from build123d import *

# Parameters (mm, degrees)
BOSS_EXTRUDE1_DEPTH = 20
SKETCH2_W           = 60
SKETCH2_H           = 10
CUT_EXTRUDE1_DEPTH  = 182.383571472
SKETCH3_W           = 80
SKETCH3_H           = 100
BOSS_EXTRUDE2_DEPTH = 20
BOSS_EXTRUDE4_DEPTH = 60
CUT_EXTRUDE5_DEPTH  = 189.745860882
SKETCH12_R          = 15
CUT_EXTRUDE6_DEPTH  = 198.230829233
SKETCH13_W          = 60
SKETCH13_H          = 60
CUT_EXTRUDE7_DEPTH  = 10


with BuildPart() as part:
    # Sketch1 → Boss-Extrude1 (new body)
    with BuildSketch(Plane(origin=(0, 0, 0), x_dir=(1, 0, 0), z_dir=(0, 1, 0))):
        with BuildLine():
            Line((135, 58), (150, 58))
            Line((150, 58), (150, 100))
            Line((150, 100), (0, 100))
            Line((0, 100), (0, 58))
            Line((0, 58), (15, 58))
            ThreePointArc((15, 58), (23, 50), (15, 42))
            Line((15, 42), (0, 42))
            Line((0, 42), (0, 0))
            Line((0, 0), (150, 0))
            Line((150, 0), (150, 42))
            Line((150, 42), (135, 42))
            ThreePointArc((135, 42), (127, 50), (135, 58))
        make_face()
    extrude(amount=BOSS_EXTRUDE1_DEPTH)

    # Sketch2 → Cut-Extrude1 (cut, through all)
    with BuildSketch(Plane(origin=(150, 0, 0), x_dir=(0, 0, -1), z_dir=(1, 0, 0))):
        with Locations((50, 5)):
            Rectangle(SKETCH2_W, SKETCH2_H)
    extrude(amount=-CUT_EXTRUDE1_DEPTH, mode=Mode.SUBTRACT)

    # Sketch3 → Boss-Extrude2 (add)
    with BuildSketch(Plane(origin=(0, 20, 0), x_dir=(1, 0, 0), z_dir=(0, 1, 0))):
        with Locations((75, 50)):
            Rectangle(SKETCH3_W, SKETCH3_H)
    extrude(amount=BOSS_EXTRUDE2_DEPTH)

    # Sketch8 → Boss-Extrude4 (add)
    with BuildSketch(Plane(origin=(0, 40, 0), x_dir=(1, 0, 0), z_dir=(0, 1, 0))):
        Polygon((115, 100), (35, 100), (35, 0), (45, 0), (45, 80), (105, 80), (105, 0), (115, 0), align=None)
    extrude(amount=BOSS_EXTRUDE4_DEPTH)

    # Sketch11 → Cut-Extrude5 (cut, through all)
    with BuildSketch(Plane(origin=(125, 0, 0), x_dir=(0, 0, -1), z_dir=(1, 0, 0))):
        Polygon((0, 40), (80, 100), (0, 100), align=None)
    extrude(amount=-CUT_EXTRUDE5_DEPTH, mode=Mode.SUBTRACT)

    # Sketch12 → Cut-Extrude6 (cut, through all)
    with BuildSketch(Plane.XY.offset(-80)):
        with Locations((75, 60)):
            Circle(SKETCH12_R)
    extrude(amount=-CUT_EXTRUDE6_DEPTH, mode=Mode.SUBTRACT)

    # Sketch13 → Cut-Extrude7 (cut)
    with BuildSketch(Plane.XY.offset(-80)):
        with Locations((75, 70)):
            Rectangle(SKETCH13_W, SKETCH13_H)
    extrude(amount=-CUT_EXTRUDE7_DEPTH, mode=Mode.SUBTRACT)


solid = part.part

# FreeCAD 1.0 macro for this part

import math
import FreeCAD as App
import Part
import Sketcher

V = App.Vector
Q = App.Units.Quantity


def add_polygon(sketch, points):
    """Adds a closed chain of lines whose ends are joined by coincident constraints."""
    first, n = sketch.GeometryCount, len(points)
    for a, b in zip(points, points[1:] + points[:1]):
        sketch.addGeometry(Part.LineSegment(App.Vector(*a, 0), App.Vector(*b, 0)), False)
    for i in range(n):
        sketch.addConstraint(Sketcher.Constraint("Coincident", first + i, 2, first + (i + 1) % n, 1))

doc = App.newDocument("Part")
body = doc.addObject("PartDesign::Body", "Body")

sketch1 = body.newObject("Sketcher::SketchObject", "Sketch")
sketch1.AttachmentSupport = (doc.getObject("XZ_Plane"), [""])
sketch1.MapMode = "FlatFace"
sketch1.addGeometry(Part.LineSegment(V(135, -58, 0), V(150, -58, 0)), False)
sketch1.addGeometry(Part.LineSegment(V(150, -58, 0), V(150, -100, 0)), False)
sketch1.addGeometry(Part.LineSegment(V(150, -100, 0), V(0, -100, 0)), False)
sketch1.addGeometry(Part.LineSegment(V(0, -100, 0), V(0, -58, 0)), False)
sketch1.addGeometry(Part.LineSegment(V(0, -58, 0), V(15, -58, 0)), False)
sketch1.addGeometry(Part.ArcOfCircle(Part.Circle(V(15, -50, 0), V(0, 0, 1), 8), math.radians(-90), math.radians(90)), False)
sketch1.addGeometry(Part.LineSegment(V(15, -42, 0), V(0, -42, 0)), False)
sketch1.addGeometry(Part.LineSegment(V(0, -42, 0), V(0, 0, 0)), False)
sketch1.addGeometry(Part.LineSegment(V(0, 0, 0), V(150, 0, 0)), False)
sketch1.addGeometry(Part.LineSegment(V(150, 0, 0), V(150, -42, 0)), False)
sketch1.addGeometry(Part.LineSegment(V(150, -42, 0), V(135, -42, 0)), False)
sketch1.addGeometry(Part.ArcOfCircle(Part.Circle(V(135, -50, 0), V(0, 0, 1), 8), math.radians(90), math.radians(270)), False)
sketch1.addConstraint(Sketcher.Constraint("Coincident", 0, 2, 1, 1))
sketch1.addConstraint(Sketcher.Constraint("Coincident", 1, 2, 2, 1))
sketch1.addConstraint(Sketcher.Constraint("Coincident", 2, 2, 3, 1))
sketch1.addConstraint(Sketcher.Constraint("Coincident", 3, 2, 4, 1))
sketch1.addConstraint(Sketcher.Constraint("Tangent", 4, 2, 5, 1))
sketch1.addConstraint(Sketcher.Constraint("Tangent", 5, 2, 6, 1))
sketch1.addConstraint(Sketcher.Constraint("Coincident", 6, 2, 7, 1))
sketch1.addConstraint(Sketcher.Constraint("Coincident", 7, 2, 8, 1))
sketch1.addConstraint(Sketcher.Constraint("Coincident", 8, 2, 9, 1))
sketch1.addConstraint(Sketcher.Constraint("Coincident", 9, 2, 10, 1))
sketch1.addConstraint(Sketcher.Constraint("Tangent", 10, 2, 11, 1))
sketch1.addConstraint(Sketcher.Constraint("Tangent", 11, 2, 0, 1))
sketch1.addConstraint(Sketcher.Constraint("Horizontal", 0))
sketch1.addConstraint(Sketcher.Constraint("Vertical", 1))
sketch1.addConstraint(Sketcher.Constraint("Horizontal", 2))
sketch1.addConstraint(Sketcher.Constraint("Vertical", 3))
sketch1.addConstraint(Sketcher.Constraint("Horizontal", 4))
sketch1.addConstraint(Sketcher.Constraint("Horizontal", 6))
sketch1.addConstraint(Sketcher.Constraint("Vertical", 7))
sketch1.addConstraint(Sketcher.Constraint("Horizontal", 8))
sketch1.addConstraint(Sketcher.Constraint("Vertical", 9))
sketch1.addConstraint(Sketcher.Constraint("Horizontal", 10))
sketch1.addConstraint(Sketcher.Constraint("Coincident", 7, 2, -1, 1))
sketch1.addConstraint(Sketcher.Constraint("Equal", 5, 11))
sketch1.addConstraint(Sketcher.Constraint("PointOnObject", 2, 2, -2))
sketch1.addConstraint(Sketcher.Constraint("Horizontal", 5, 3, 11, 3))
sketch1.addConstraint(Sketcher.Constraint("Vertical", 1, 2, 8, 2))
sketch1.addConstraint(Sketcher.Constraint("Equal", 0, 4))
sketch1.addConstraint(Sketcher.Constraint("Equal", 3, 7))
sketch1.addConstraint(Sketcher.Constraint("Radius", 5, Q("8 mm")))
sketch1.addConstraint(Sketcher.Constraint("DistanceX", 0, 1, 0, 2, Q("15 mm")))
sketch1.addConstraint(Sketcher.Constraint("DistanceX", 2, 2, 2, 1, Q("150 mm")))
sketch1.addConstraint(Sketcher.Constraint("DistanceY", 1, 2, 1, 1, Q("42 mm")))
pad1 = body.newObject("PartDesign::Pad", "Pad")
pad1.Profile = sketch1
pad1.Length = 20
pad1.Reversed = True

sketch2 = body.newObject("Sketcher::SketchObject", "Sketch001")
sketch2.AttachmentSupport = (doc.getObject("YZ_Plane"), [""])
sketch2.MapMode = "FlatFace"
sketch2.AttachmentOffset = App.Placement(V(0, 0, 150), App.Rotation())
add_polygon(sketch2, [(10, -20), (0, -20), (0, -80), (10, -80)])
sketch2.addConstraint(Sketcher.Constraint("Horizontal", 0))
sketch2.addConstraint(Sketcher.Constraint("Vertical", 1))
sketch2.addConstraint(Sketcher.Constraint("Horizontal", 2))
sketch2.addConstraint(Sketcher.Constraint("Vertical", 3))
sketch2.addConstraint(Sketcher.Constraint("PointOnObject", 0, 2, -2))
sketch2.addConstraint(Sketcher.Constraint("DistanceX", 0, 2, 0, 1, Q("10 mm")))
sketch2.addConstraint(Sketcher.Constraint("DistanceY", 1, 2, 1, 1, Q("60 mm")))
sketch2.addConstraint(Sketcher.Constraint("DistanceY", 0, 2, -1, 1, Q("20 mm")))
pocket1 = body.newObject("PartDesign::Pocket", "Pocket")
pocket1.Profile = sketch2
pocket1.Type = "ThroughAll"

sketch3 = body.newObject("Sketcher::SketchObject", "Sketch002")
sketch3.AttachmentSupport = (doc.getObject("XZ_Plane"), [""])
sketch3.MapMode = "FlatFace"
sketch3.AttachmentOffset = App.Placement(V(0, 0, -20), App.Rotation())
add_polygon(sketch3, [(35, -100), (35, 0), (115, 0), (115, -100)])
sketch3.addConstraint(Sketcher.Constraint("Vertical", 0))
sketch3.addConstraint(Sketcher.Constraint("Horizontal", 1))
sketch3.addConstraint(Sketcher.Constraint("Vertical", 2))
sketch3.addConstraint(Sketcher.Constraint("Horizontal", 3))
sketch3.addConstraint(Sketcher.Constraint("PointOnObject", 0, 2, -1))
sketch3.addConstraint(Sketcher.Constraint("DistanceX", 1, 1, 1, 2, Q("80 mm")))
sketch3.addConstraint(Sketcher.Constraint("DistanceY", 0, 1, 0, 2, Q("100 mm")))
sketch3.addConstraint(Sketcher.Constraint("DistanceX", -1, 1, 0, 2, Q("35 mm")))
pad2 = body.newObject("PartDesign::Pad", "Pad001")
pad2.Profile = sketch3
pad2.Length = 20
pad2.Reversed = True

sketch4 = body.newObject("Sketcher::SketchObject", "Sketch003")
sketch4.AttachmentSupport = (doc.getObject("XZ_Plane"), [""])
sketch4.MapMode = "FlatFace"
sketch4.AttachmentOffset = App.Placement(V(0, 0, -40), App.Rotation())
add_polygon(sketch4, [(115, -100), (35, -100), (35, 0), (45, 0), (45, -80), (105, -80), (105, 0), (115, 0)])
sketch4.addConstraint(Sketcher.Constraint("Horizontal", 0))
sketch4.addConstraint(Sketcher.Constraint("Vertical", 1))
sketch4.addConstraint(Sketcher.Constraint("Horizontal", 2))
sketch4.addConstraint(Sketcher.Constraint("Vertical", 3))
sketch4.addConstraint(Sketcher.Constraint("Horizontal", 4))
sketch4.addConstraint(Sketcher.Constraint("Vertical", 5))
sketch4.addConstraint(Sketcher.Constraint("Horizontal", 6))
sketch4.addConstraint(Sketcher.Constraint("Vertical", 7))
sketch4.addConstraint(Sketcher.Constraint("PointOnObject", 1, 2, -1))
sketch4.addConstraint(Sketcher.Constraint("PointOnObject", 5, 2, -1))
sketch4.addConstraint(Sketcher.Constraint("Equal", 2, 6))
sketch4.addConstraint(Sketcher.Constraint("Equal", 0, 3))
sketch4.addConstraint(Sketcher.Constraint("DistanceX", 0, 2, 0, 1, Q("80 mm")))
sketch4.addConstraint(Sketcher.Constraint("DistanceX", 2, 1, 2, 2, Q("10 mm")))
sketch4.addConstraint(Sketcher.Constraint("DistanceY", 1, 1, 1, 2, Q("100 mm")))
sketch4.addConstraint(Sketcher.Constraint("DistanceX", -1, 1, 0, 2, Q("35 mm")))
pad3 = body.newObject("PartDesign::Pad", "Pad002")
pad3.Profile = sketch4
pad3.Length = 60
pad3.Reversed = True

sketch5 = body.newObject("Sketcher::SketchObject", "Sketch004")
sketch5.AttachmentSupport = (doc.getObject("YZ_Plane"), [""])
sketch5.MapMode = "FlatFace"
sketch5.AttachmentOffset = App.Placement(V(0, 0, 125), App.Rotation())
add_polygon(sketch5, [(40, 0), (100, -80), (100, 0)])
sketch5.addConstraint(Sketcher.Constraint("Vertical", 1))
sketch5.addConstraint(Sketcher.Constraint("Horizontal", 2))
sketch5.addConstraint(Sketcher.Constraint("PointOnObject", 1, 2, -1))
sketch5.addConstraint(Sketcher.Constraint("DistanceX", 2, 2, 2, 1, Q("60 mm")))
sketch5.addConstraint(Sketcher.Constraint("DistanceY", 1, 1, 1, 2, Q("80 mm")))
sketch5.addConstraint(Sketcher.Constraint("DistanceX", -1, 1, 0, 2, Q("100 mm")))
pocket2 = body.newObject("PartDesign::Pocket", "Pocket001")
pocket2.Profile = sketch5
pocket2.Type = "ThroughAll"

sketch6 = body.newObject("Sketcher::SketchObject", "Sketch005")
sketch6.AttachmentSupport = (doc.getObject("XY_Plane"), [""])
sketch6.MapMode = "FlatFace"
sketch6.AttachmentOffset = App.Placement(V(0, 0, -80), App.Rotation())
sketch6.addGeometry(Part.Circle(V(75, 60, 0), V(0, 0, 1), 15), False)
sketch6.addConstraint(Sketcher.Constraint("Diameter", 0, Q("30 mm")))
sketch6.addConstraint(Sketcher.Constraint("DistanceX", -1, 1, 0, 3, Q("75 mm")))
sketch6.addConstraint(Sketcher.Constraint("DistanceY", -1, 1, 0, 3, Q("60 mm")))
pocket3 = body.newObject("PartDesign::Pocket", "Pocket002")
pocket3.Profile = sketch6
pocket3.Type = "ThroughAll"

sketch7 = body.newObject("Sketcher::SketchObject", "Sketch006")
sketch7.AttachmentSupport = (doc.getObject("XY_Plane"), [""])
sketch7.MapMode = "FlatFace"
sketch7.AttachmentOffset = App.Placement(V(0, 0, -80), App.Rotation())
add_polygon(sketch7, [(45, 100), (45, 40), (105, 40), (105, 100)])
sketch7.addConstraint(Sketcher.Constraint("Vertical", 0))
sketch7.addConstraint(Sketcher.Constraint("Horizontal", 1))
sketch7.addConstraint(Sketcher.Constraint("Vertical", 2))
sketch7.addConstraint(Sketcher.Constraint("Horizontal", 3))
sketch7.addConstraint(Sketcher.Constraint("Equal", 3, 0))
sketch7.addConstraint(Sketcher.Constraint("DistanceX", 1, 1, 1, 2, Q("60 mm")))
sketch7.addConstraint(Sketcher.Constraint("DistanceX", -1, 1, 0, 2, Q("45 mm")))
sketch7.addConstraint(Sketcher.Constraint("DistanceY", -1, 1, 0, 2, Q("40 mm")))
pocket4 = body.newObject("PartDesign::Pocket", "Pocket003")
pocket4.Profile = sketch7
pocket4.Length = 10

doc.recompute()
